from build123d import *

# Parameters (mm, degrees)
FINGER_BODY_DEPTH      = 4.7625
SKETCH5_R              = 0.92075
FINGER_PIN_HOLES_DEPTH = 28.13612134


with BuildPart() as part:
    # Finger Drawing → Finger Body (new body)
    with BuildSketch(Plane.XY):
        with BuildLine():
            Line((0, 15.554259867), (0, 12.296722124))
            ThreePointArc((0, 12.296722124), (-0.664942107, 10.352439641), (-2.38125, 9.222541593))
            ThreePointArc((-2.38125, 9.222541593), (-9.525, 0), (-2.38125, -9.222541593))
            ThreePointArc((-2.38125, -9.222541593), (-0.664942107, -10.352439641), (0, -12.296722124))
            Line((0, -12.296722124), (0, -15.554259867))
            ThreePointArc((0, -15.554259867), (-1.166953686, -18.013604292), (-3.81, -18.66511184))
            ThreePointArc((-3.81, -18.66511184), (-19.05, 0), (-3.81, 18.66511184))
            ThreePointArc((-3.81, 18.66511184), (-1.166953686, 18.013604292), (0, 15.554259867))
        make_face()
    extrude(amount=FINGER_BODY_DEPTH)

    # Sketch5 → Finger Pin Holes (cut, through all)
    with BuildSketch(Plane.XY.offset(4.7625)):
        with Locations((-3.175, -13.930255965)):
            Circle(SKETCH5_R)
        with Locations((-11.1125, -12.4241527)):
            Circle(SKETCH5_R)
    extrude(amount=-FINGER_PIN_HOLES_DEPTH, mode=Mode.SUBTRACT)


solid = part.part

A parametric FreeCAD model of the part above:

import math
import FreeCAD as App
import Part
import Sketcher

V = App.Vector
Q = App.Units.Quantity

doc = App.newDocument("Part")
params = doc.addObject("Spreadsheet::Sheet", "Params")
for row, (alias, value) in enumerate([
    ("sketch1_radius", "0.75 in"),
    ("sketch1_radius2", "0.125 in"),
    ("sketch1_radius3", "0.375 in"),
    ("pad1_length", "0.1875 in"),
], start=1):
    params.set(f"A{row}", alias)
    params.set(f"B{row}", "=" + value)
    params.setAlias(f"B{row}", alias)

body = doc.addObject("PartDesign::Body", "Body")

# Sketch on XY plane
sketch1 = body.newObject("Sketcher::SketchObject", "Sketch")
sketch1.AttachmentSupport = (doc.getObject("XY_Plane"), [""])
sketch1.MapMode = "FlatFace"
sketch1.addGeometry(Part.LineSegment(V(0, 12.3, 0), V(0, 15.6, 0)), False)
sketch1.addGeometry(Part.ArcOfCircle(Part.Circle(V(-3.2, 15.6, 0), V(0, 0, 1), 3.2), math.radians(0), math.radians(102)), False)
sketch1.addGeometry(Part.ArcOfCircle(Part.Circle(V(0, 0, 0), V(0, 0, 1), 19.1), math.radians(102), math.radians(258)), False)
sketch1.addGeometry(Part.ArcOfCircle(Part.Circle(V(-3.2, -15.6, 0), V(0, 0, 1), 3.2), math.radians(-102), math.radians(0)), False)
sketch1.addGeometry(Part.LineSegment(V(0, -15.6, 0), V(0, -12.3, 0)), False)
sketch1.addGeometry(Part.ArcOfCircle(Part.Circle(V(-3.2, -12.3, 0), V(0, 0, 1), 3.2), math.radians(0), math.radians(76)), False)
sketch1.addGeometry(Part.ArcOfCircle(Part.Circle(V(0, 0, 0), V(0, 0, 1), 9.5), math.radians(104), math.radians(256)), False)
sketch1.addGeometry(Part.ArcOfCircle(Part.Circle(V(-3.2, 12.3, 0), V(0, 0, 1), 3.2), math.radians(-76), math.radians(0)), False)
sketch1.addConstraint(Sketcher.Constraint("Tangent", 0, 2, 1, 1))
sketch1.addConstraint(Sketcher.Constraint("Tangent", 1, 2, 2, 1))
sketch1.addConstraint(Sketcher.Constraint("Tangent", 2, 2, 3, 1))
sketch1.addConstraint(Sketcher.Constraint("Tangent", 3, 2, 4, 1))
sketch1.addConstraint(Sketcher.Constraint("Tangent", 4, 2, 5, 1))
sketch1.addConstraint(Sketcher.Constraint("Tangent", 5, 2, 6, 2))
sketch1.addConstraint(Sketcher.Constraint("Tangent", 6, 1, 7, 1))
sketch1.addConstraint(Sketcher.Constraint("Tangent", 7, 2, 0, 1))
sketch1.addConstraint(Sketcher.Constraint("Vertical", 0))
sketch1.addConstraint(Sketcher.Constraint("Vertical", 4))
sketch1.addConstraint(Sketcher.Constraint("Coincident", 2, 3, -1, 1))
sketch1.addConstraint(Sketcher.Constraint("Coincident", 6, 3, -1, 1))
sketch1.addConstraint(Sketcher.Constraint("Equal", 1, 3))
sketch1.addConstraint(Sketcher.Constraint("Equal", 3, 5))
sketch1.addConstraint(Sketcher.Constraint("Equal", 5, 7))
sketch1.addConstraint(Sketcher.Constraint("Symmetric", 0, 2, 3, 2, -1, 1))
sketch1.addConstraint(Sketcher.Constraint("Radius", 2, Q("0.75 in")))
sketch1.addConstraint(Sketcher.Constraint("Radius", 1, Q("0.125 in")))
sketch1.addConstraint(Sketcher.Constraint("Radius", 6, Q("0.375 in")))
sketch1.setExpression("Constraints[16]", "Params.sketch1_radius")
sketch1.setExpression("Constraints[17]", "Params.sketch1_radius2")
sketch1.setExpression("Constraints[18]", "Params.sketch1_radius3")
pad1 = body.newObject("PartDesign::Pad", "Pad")
pad1.Profile = sketch1
pad1.setExpression("Length", "Params.pad1_length")

# Sketch on XY plane
sketch2 = body.newObject("Sketcher::SketchObject", "Sketch001")
sketch2.AttachmentSupport = (doc.getObject("XY_Plane"), [""])
sketch2.MapMode = "FlatFace"
sketch2.AttachmentOffset = App.Placement(V(0, 0, 0.1875 * 25.4), App.Rotation())
sketch2.addGeometry(Part.Circle(V(-3.2, -13.9, 0), V(0, 0, 1), 0.9), False)
sketch2.addGeometry(Part.Circle(V(-11.1, -12.4, 0), V(0, 0, 1), 0.9), False)
sketch2.addConstraint(Sketcher.Constraint("Equal", 0, 1))
sketch2.addConstraint(Sketcher.Constraint("Diameter", 0, Q("0.0725 in")))
sketch2.addConstraint(Sketcher.Constraint("DistanceX", 0, 3, -1, 1, Q("0.125 in")))
sketch2.addConstraint(Sketcher.Constraint("DistanceX", 1, 3, -1, 1, Q("0.4375 in")))
sketch2.addConstraint(Sketcher.Constraint("DistanceY", 0, 3, -1, 1, Q("13.930256 mm")))
sketch2.addConstraint(Sketcher.Constraint("DistanceY", 1, 3, -1, 1, Q("12.424153 mm")))
pocket1 = body.newObject("PartDesign::Pocket", "Pocket")
pocket1.Profile = sketch2
pocket1.Type = "ThroughAll"

doc.recompute()
